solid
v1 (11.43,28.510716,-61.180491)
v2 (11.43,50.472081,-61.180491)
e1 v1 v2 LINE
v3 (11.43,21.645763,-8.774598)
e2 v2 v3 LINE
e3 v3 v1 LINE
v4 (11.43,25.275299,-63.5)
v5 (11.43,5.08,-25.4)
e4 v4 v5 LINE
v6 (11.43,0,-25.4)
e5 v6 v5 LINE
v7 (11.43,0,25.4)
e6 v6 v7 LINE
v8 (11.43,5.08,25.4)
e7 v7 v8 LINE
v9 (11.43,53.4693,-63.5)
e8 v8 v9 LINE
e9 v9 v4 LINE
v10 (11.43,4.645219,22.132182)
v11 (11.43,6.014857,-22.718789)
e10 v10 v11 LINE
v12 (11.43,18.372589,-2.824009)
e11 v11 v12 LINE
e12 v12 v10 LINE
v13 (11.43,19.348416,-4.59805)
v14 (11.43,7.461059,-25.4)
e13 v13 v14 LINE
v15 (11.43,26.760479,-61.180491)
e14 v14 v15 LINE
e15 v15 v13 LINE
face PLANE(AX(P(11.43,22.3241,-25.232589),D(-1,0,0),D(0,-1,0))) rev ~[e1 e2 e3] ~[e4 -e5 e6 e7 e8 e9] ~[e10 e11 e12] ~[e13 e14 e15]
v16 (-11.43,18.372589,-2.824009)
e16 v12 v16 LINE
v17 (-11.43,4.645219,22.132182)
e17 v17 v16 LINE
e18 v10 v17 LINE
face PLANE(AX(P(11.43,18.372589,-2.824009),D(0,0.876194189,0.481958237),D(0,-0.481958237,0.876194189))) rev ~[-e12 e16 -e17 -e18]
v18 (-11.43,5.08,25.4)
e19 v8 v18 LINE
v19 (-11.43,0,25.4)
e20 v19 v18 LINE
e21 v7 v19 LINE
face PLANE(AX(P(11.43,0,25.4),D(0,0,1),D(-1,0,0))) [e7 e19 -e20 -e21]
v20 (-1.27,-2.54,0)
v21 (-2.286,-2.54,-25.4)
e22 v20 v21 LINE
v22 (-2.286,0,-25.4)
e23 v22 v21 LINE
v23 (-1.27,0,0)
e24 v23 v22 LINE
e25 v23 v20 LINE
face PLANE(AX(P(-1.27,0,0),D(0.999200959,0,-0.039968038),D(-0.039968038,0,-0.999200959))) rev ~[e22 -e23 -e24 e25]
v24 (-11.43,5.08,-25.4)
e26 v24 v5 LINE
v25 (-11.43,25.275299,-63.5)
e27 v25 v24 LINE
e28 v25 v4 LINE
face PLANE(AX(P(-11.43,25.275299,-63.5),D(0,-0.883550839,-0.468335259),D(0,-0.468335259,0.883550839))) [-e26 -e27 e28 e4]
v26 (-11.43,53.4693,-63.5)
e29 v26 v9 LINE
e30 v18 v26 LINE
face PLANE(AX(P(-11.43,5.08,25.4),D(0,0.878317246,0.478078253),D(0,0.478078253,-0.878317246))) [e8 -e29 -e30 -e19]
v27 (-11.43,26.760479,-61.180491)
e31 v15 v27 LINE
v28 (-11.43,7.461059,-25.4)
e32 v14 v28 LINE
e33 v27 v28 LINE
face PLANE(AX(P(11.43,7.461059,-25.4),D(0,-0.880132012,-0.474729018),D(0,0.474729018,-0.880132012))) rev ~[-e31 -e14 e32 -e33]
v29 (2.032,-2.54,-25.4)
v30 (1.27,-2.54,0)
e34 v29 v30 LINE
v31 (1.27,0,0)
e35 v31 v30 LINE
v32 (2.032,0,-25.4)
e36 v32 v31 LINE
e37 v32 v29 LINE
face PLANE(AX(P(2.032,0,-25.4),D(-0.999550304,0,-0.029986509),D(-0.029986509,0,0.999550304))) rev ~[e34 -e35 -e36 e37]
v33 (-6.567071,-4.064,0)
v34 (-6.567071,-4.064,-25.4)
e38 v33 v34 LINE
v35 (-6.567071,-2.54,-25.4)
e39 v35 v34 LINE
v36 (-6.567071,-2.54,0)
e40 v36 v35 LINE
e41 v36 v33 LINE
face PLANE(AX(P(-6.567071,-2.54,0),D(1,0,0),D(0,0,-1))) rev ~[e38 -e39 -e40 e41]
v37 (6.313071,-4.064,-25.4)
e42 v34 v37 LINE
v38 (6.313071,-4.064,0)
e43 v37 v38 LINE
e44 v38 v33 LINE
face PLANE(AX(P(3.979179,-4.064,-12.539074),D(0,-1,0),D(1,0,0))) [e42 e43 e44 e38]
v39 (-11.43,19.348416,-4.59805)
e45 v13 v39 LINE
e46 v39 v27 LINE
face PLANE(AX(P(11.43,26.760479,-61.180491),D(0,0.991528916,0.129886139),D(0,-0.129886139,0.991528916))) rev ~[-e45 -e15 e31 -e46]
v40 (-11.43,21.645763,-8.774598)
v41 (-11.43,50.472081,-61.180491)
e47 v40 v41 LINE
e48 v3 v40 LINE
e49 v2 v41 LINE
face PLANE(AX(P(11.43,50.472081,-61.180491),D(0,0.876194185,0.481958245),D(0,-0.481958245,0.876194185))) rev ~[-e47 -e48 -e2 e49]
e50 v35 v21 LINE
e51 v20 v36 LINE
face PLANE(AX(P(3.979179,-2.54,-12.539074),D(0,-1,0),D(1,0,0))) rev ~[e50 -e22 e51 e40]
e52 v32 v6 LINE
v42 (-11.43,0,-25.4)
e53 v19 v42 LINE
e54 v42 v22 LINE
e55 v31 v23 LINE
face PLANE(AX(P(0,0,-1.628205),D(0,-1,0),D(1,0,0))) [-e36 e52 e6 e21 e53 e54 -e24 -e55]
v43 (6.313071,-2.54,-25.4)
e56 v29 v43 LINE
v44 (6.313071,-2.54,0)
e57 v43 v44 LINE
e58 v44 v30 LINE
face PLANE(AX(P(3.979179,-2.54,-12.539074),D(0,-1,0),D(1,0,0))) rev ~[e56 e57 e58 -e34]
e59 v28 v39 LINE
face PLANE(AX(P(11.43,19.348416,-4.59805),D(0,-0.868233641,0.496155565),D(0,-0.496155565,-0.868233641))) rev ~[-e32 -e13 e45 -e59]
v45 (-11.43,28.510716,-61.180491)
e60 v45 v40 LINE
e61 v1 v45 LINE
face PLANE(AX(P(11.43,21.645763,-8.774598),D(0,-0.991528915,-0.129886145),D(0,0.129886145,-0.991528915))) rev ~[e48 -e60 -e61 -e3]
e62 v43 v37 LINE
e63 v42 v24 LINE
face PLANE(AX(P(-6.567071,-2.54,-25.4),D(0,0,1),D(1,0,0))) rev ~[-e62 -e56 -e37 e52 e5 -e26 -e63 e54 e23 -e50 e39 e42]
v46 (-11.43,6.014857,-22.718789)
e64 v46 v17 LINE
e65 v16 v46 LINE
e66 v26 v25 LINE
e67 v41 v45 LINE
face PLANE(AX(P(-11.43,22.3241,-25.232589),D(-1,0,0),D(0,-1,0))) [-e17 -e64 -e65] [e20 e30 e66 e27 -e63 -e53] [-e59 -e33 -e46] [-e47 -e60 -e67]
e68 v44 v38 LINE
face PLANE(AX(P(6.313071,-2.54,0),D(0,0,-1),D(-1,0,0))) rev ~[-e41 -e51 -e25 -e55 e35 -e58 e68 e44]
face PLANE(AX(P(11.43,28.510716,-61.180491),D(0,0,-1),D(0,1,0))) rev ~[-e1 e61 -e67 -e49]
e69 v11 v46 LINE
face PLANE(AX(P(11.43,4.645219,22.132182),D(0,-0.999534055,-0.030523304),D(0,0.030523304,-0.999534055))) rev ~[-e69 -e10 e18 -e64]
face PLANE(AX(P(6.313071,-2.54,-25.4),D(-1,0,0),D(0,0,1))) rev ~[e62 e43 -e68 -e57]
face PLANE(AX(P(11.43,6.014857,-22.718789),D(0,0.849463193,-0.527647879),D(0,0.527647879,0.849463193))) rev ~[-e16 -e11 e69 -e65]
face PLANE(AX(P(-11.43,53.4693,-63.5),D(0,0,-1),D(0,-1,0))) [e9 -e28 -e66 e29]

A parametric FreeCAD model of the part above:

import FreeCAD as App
import Part
import Sketcher
Q = App.Units.Quantity

doc = App.newDocument("Part")
body = doc.addObject("PartDesign::Body", "Body")

# Sketch on XZ plane
sketch1 = body.newObject("Sketcher::SketchObject", "Sketch")
sketch1.AttachmentSupport = (doc.getObject("XZ_Plane"), [""])
sketch1.MapMode = "FlatFace"
sketch1.addGeometry([
    Part.LineSegment(App.Vector(11, 25, 0), App.Vector(-11, 25, 0)),
    Part.LineSegment(App.Vector(-11, 25, 0), App.Vector(-11, -25, 0)),
    Part.LineSegment(App.Vector(-11, -25, 0), App.Vector(11, -25, 0)),
    Part.LineSegment(App.Vector(11, -25, 0), App.Vector(11, 25, 0)),
], False)
sketch1.addConstraint([
    Sketcher.Constraint("Coincident", 0, 2, 1, 1),
    Sketcher.Constraint("Coincident", 1, 2, 2, 1),
    Sketcher.Constraint("Coincident", 2, 2, 3, 1),
    Sketcher.Constraint("Coincident", 3, 2, 0, 1),
    Sketcher.Constraint("Horizontal", 0),
    Sketcher.Constraint("Vertical", 1),
    Sketcher.Constraint("Horizontal", 2),
    Sketcher.Constraint("Vertical", 3),
    Sketcher.Constraint("Symmetric", 0, 2, 2, 2, -1, 1),
    Sketcher.Constraint("DistanceY", 1, 2, 1, 1, Q("2 in")),
    Sketcher.Constraint("DistanceX", 0, 2, 0, 1, Q("0.9 in")),
])
pad1 = body.newObject("PartDesign::Pad", "Pad")
pad1.Profile = sketch1
pad1.Length = Q("0.2 in")
pad1.Reversed = True

# Sketch on XZ plane
sketch2 = body.newObject("Sketcher::SketchObject", "Sketch001")
sketch2.AttachmentSupport = (doc.getObject("XZ_Plane"), [""])
sketch2.MapMode = "FlatFace"
sketch2.addGeometry([
    Part.LineSegment(App.Vector(-1.3, 0, 0), App.Vector(-2.3, -25.4, 0)),
    Part.LineSegment(App.Vector(-2.3, -25.4, 0), App.Vector(2, -25.4, 0)),
    Part.LineSegment(App.Vector(2, -25.4, 0), App.Vector(1.3, 0, 0)),
    Part.LineSegment(App.Vector(1.3, 0, 0), App.Vector(-1.3, 0, 0)),
], False)
sketch2.addConstraint([
    Sketcher.Constraint("Coincident", 0, 2, 1, 1),
    Sketcher.Constraint("Coincident", 1, 2, 2, 1),
    Sketcher.Constraint("Coincident", 2, 2, 3, 1),
    Sketcher.Constraint("Coincident", 3, 2, 0, 1),
    Sketcher.Constraint("Horizontal", 1),
    Sketcher.Constraint("Horizontal", 3),
    Sketcher.Constraint("Symmetric", 2, 2, 3, 2, -1, 1),
    Sketcher.Constraint("DistanceX", 3, 2, 3, 1, Q("0.1 in")),
    Sketcher.Constraint("DistanceY", 0, 2, -1, 1, Q("1 in")),
    Sketcher.Constraint("DistanceX", 1, 1, 1, 2, Q("0.17 in")),
    Sketcher.Constraint("DistanceX", 0, 2, -1, 1, Q("0.09 in")),
])
pad2 = body.newObject("PartDesign::Pad", "Pad001")
pad2.Profile = sketch2
pad2.Length = Q("0.1 in")

# Sketch on XZ plane
sketch3 = body.newObject("Sketcher::SketchObject", "Sketch002")
sketch3.AttachmentSupport = (doc.getObject("XZ_Plane"), [""])
sketch3.MapMode = "FlatFace"
sketch3.AttachmentOffset = App.Placement(App.Vector(0, 0, 0.1 * 25.4), App.Rotation())
sketch3.addGeometry([
    Part.LineSegment(App.Vector(6, 0, 0), App.Vector(-7, 0, 0)),
    Part.LineSegment(App.Vector(-7, 0, 0), App.Vector(-7, -25, 0)),
    Part.LineSegment(App.Vector(-7, -25, 0), App.Vector(6, -25, 0)),
    Part.LineSegment(App.Vector(6, -25, 0), App.Vector(6, 0, 0)),
], False)
sketch3.addConstraint([
    Sketcher.Constraint("Coincident", 0, 2, 1, 1),
    Sketcher.Constraint("Coincident", 1, 2, 2, 1),
    Sketcher.Constraint("Coincident", 2, 2, 3, 1),
    Sketcher.Constraint("Coincident", 3, 2, 0, 1),
    Sketcher.Constraint("Horizontal", 0),
    Sketcher.Constraint("Vertical", 1),
    Sketcher.Constraint("Horizontal", 2),
    Sketcher.Constraint("Vertical", 3),
    Sketcher.Constraint("PointOnObject", 0, 2, -1),
    Sketcher.Constraint("DistanceY", 1, 2, 1, 1, Q("1 in")),
    Sketcher.Constraint("DistanceX", 0, 2, 0, 1, 12.880142),
    Sketcher.Constraint("DistanceX", 0, 2, -1, 1, 6.567071),
])
pad3 = body.newObject("PartDesign::Pad", "Pad002")
pad3.Profile = sketch3
pad3.Length = Q("0.06 in")

# Sketch on YZ plane
sketch4 = body.newObject("Sketcher::SketchObject", "Sketch003")
sketch4.AttachmentSupport = (doc.getObject("YZ_Plane"), [""])
sketch4.MapMode = "FlatFace"
sketch4.AttachmentOffset = App.Placement(App.Vector(0, 0, -0.45 * 25.4), App.Rotation())
sketch4.addGeometry([
    Part.LineSegment(App.Vector(5, -25, 0), App.Vector(5, 25, 0)),
    Part.LineSegment(App.Vector(5, 25, 0), App.Vector(53, -64, 0)),
    Part.LineSegment(App.Vector(53, -64, 0), App.Vector(25, -64, 0)),
    Part.LineSegment(App.Vector(25, -64, 0), App.Vector(5, -25, 0)),
], False)
sketch4.addConstraint([
    Sketcher.Constraint("Coincident", 0, 2, 1, 1),
    Sketcher.Constraint("Coincident", 1, 2, 2, 1),
    Sketcher.Constraint("Coincident", 2, 2, 3, 1),
    Sketcher.Constraint("Coincident", 3, 2, 0, 1),
    Sketcher.Constraint("Vertical", 0),
    Sketcher.Constraint("Horizontal", 2),
    Sketcher.Constraint("DistanceY", 0, 1, 0, 2, Q("2 in")),
    Sketcher.Constraint("DistanceY", -1, 1, 0, 2, Q("1 in")),
    Sketcher.Constraint("DistanceX", 2, 2, 2, 1, Q("1.11 in")),
    Sketcher.Constraint("DistanceX", -1, 1, 0, 2, Q("0.2 in")),
    Sketcher.Constraint("DistanceY", 1, 2, -1, 1, Q("2.5 in")),
    Sketcher.Constraint("DistanceX", -1, 1, 1, 2, 53.4693),
])
pad4 = body.newObject("PartDesign::Pad", "Pad003")
pad4.Profile = sketch4
pad4.Length = Q("0.9 in")

# Sketch on YZ plane
sketch5 = body.newObject("Sketcher::SketchObject", "Sketch004")
sketch5.AttachmentSupport = (doc.getObject("YZ_Plane"), [""])
sketch5.MapMode = "FlatFace"
sketch5.AttachmentOffset = App.Placement(App.Vector(0, 0, 0.45 * 25.4), App.Rotation())
sketch5.addGeometry([
    Part.LineSegment(App.Vector(18, -3, 0), App.Vector(5, 22, 0)),  # 0
    Part.LineSegment(App.Vector(5, 22, 0), App.Vector(6, -23, 0)),  # 1
    Part.LineSegment(App.Vector(6, -23, 0), App.Vector(18, -3, 0)),  # 2
    Part.LineSegment(App.Vector(7, -25, 0), App.Vector(27, -61, 0)),  # 3
    Part.LineSegment(App.Vector(27, -61, 0), App.Vector(19, -5, 0)),  # 4
    Part.LineSegment(App.Vector(19, -5, 0), App.Vector(7, -25, 0)),  # 5
    Part.LineSegment(App.Vector(29, -61, 0), App.Vector(50, -61, 0)),  # 6
    Part.LineSegment(App.Vector(50, -61, 0), App.Vector(22, -9, 0)),  # 7
    Part.LineSegment(App.Vector(22, -9, 0), App.Vector(29, -61, 0)),  # 8
], False)
sketch5.addConstraint([
    Sketcher.Constraint("Coincident", 0, 2, 1, 1),
    Sketcher.Constraint("Coincident", 1, 2, 2, 1),
    Sketcher.Constraint("Coincident", 2, 2, 0, 1),
    Sketcher.Constraint("Coincident", 3, 2, 4, 1),
    Sketcher.Constraint("Coincident", 4, 2, 5, 1),
    Sketcher.Constraint("Coincident", 5, 2, 3, 1),
    Sketcher.Constraint("Coincident", 6, 2, 7, 1),
    Sketcher.Constraint("Coincident", 7, 2, 8, 1),
    Sketcher.Constraint("Coincident", 8, 2, 6, 1),
    Sketcher.Constraint("Horizontal", 6),
    Sketcher.Constraint("Parallel", 0, 7),
    Sketcher.Constraint("Parallel", 4, 8),
    Sketcher.Constraint("Horizontal", 3, 2, 6, 2),
    Sketcher.Constraint("DistanceY", 5, 2, -1, 1, Q("1 in")),
    Sketcher.Constraint("DistanceX", 1, 2, 5, 2, 1.446202),
    Sketcher.Constraint("Distance", 0, 28.482489),
    Sketcher.Constraint("Distance", 1, 44.871879),
    Sketcher.Constraint("Distance", 3, 40.65355),
    Sketcher.Constraint("Distance", 4, 57.065851),
    Sketcher.Constraint("Distance", 5, 23.958931),
    Sketcher.Constraint("Distance", 7, 59.81082),
    Sketcher.Constraint("Distance", 8, 52.853621),
    Sketcher.Constraint("DistanceX", 6, 1, 6, 2, 21.961365),
    Sketcher.Constraint("DistanceX", -1, 1, 0, 2, 4.645219),
    Sketcher.Constraint("DistanceY", -1, 1, 0, 2, 22.132182),
    Sketcher.Constraint("DistanceY", 1, 2, -1, 1, 22.718789),
    Sketcher.Constraint("DistanceX", -1, 1, 6, 2, 50.472081),
])
pocket1 = body.newObject("PartDesign::Pocket", "Pocket")
pocket1.Profile = sketch5
pocket1.Length = Q("1 in")

doc.recompute()
